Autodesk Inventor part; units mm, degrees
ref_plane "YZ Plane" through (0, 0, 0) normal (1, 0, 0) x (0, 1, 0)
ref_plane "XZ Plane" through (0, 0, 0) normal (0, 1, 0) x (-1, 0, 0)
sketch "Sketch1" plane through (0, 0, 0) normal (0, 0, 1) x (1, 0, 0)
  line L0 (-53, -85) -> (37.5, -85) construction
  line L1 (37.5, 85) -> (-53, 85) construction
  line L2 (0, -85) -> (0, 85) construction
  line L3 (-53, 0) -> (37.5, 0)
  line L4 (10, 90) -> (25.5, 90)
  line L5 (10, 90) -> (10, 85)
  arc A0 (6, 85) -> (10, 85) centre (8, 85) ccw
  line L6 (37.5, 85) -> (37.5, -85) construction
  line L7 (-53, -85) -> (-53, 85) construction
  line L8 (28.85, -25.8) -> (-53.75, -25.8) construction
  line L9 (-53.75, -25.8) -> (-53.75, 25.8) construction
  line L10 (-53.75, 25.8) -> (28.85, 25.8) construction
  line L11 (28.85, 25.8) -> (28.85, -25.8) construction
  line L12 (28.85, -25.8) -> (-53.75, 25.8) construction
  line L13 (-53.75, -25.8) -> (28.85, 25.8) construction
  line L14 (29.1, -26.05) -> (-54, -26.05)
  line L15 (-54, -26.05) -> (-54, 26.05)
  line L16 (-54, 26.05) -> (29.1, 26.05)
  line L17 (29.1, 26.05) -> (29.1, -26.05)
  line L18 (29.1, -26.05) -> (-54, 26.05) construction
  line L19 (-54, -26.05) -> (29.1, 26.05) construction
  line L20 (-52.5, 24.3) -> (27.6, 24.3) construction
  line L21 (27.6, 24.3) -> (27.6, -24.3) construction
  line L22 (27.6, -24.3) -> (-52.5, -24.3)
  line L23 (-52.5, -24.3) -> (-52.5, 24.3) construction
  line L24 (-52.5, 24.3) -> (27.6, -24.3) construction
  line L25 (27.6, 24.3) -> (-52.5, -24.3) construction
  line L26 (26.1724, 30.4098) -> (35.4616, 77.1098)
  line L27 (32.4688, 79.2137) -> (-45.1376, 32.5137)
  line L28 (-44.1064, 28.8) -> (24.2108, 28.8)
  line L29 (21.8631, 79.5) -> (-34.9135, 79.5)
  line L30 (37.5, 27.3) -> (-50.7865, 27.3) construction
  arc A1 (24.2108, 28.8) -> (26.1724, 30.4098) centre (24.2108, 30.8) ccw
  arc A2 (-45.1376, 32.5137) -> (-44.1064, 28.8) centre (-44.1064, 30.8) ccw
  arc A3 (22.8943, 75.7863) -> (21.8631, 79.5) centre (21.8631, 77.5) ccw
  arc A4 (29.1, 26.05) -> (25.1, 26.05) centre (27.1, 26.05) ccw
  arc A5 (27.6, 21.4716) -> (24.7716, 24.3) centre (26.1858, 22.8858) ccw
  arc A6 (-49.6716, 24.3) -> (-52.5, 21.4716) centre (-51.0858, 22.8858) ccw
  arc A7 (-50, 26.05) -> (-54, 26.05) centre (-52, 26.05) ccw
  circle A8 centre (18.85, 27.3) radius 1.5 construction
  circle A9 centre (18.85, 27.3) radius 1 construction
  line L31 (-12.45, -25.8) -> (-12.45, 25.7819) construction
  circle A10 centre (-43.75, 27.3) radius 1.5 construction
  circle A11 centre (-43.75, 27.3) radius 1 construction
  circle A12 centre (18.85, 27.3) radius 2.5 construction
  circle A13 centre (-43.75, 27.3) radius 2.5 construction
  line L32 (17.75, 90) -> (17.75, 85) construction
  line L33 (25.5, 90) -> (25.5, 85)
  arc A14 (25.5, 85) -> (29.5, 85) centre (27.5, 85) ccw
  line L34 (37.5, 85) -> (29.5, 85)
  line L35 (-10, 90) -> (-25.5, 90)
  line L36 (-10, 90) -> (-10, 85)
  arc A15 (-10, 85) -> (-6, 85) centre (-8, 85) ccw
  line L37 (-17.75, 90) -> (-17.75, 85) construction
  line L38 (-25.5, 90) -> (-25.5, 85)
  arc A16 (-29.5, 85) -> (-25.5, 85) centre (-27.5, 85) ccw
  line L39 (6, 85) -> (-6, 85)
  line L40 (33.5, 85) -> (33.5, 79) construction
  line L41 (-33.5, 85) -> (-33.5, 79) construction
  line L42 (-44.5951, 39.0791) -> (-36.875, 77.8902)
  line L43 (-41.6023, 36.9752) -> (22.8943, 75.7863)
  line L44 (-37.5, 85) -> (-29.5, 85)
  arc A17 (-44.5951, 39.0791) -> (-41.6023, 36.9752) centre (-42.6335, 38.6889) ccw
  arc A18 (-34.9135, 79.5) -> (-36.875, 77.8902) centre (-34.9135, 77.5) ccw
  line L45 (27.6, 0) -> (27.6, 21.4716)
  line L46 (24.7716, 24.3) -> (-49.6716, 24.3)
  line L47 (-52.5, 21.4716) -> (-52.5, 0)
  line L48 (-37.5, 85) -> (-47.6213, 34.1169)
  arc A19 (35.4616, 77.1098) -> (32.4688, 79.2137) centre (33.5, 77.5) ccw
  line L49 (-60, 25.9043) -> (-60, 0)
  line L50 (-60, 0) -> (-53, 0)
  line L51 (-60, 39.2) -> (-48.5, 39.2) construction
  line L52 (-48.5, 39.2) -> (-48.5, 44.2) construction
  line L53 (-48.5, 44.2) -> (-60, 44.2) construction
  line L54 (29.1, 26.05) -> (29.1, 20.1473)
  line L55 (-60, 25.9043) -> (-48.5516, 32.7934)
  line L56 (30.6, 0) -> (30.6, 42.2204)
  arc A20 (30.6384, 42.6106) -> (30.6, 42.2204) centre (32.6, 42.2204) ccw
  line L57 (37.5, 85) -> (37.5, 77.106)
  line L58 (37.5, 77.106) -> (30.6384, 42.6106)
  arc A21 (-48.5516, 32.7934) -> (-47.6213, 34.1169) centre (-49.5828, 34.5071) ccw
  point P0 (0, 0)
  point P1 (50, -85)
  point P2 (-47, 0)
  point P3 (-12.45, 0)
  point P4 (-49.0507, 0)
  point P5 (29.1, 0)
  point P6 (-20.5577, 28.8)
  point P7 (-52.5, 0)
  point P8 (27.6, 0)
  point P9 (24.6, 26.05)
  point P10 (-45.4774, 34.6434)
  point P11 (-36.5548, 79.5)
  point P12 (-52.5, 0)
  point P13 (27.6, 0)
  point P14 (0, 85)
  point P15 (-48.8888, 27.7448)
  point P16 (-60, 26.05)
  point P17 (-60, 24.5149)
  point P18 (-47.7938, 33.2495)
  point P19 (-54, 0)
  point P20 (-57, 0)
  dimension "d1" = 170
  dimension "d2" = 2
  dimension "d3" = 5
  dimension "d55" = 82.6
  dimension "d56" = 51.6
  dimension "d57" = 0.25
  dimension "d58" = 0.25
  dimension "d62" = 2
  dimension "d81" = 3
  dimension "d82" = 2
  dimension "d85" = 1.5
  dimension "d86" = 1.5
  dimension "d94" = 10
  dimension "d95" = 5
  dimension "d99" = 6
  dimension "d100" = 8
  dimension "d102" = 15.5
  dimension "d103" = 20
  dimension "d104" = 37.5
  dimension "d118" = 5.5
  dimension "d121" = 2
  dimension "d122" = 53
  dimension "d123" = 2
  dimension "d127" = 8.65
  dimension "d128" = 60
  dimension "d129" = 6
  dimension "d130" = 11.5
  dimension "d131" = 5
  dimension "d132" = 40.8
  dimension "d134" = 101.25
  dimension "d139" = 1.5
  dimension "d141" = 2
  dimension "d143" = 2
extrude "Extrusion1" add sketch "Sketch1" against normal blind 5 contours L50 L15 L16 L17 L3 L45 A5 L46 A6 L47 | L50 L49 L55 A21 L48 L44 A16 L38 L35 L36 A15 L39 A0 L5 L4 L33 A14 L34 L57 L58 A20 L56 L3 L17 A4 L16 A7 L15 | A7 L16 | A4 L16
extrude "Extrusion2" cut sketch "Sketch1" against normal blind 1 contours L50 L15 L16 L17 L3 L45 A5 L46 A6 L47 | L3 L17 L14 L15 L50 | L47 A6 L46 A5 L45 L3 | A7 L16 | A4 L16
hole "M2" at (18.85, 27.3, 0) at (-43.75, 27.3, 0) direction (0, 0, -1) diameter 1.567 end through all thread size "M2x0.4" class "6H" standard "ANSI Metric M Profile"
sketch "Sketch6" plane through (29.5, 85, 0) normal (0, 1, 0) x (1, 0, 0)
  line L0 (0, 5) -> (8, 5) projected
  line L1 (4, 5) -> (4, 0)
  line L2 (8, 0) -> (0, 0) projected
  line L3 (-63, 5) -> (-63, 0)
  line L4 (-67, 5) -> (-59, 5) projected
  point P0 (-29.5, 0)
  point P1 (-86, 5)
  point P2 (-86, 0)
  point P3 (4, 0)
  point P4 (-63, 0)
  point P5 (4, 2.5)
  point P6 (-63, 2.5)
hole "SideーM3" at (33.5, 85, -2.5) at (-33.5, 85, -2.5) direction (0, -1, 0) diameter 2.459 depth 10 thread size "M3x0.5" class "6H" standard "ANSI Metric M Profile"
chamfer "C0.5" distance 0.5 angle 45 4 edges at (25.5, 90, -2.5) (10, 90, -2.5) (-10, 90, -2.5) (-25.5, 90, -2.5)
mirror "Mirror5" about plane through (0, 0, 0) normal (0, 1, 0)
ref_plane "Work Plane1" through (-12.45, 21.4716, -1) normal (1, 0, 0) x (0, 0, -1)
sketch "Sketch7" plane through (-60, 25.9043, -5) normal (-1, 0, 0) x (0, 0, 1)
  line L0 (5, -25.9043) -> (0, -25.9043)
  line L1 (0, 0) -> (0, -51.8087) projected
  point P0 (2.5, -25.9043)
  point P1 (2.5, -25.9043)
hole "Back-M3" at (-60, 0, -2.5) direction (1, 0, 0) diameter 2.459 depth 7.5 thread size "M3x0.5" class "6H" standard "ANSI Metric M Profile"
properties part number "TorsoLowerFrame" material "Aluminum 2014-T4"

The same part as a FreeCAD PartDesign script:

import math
import FreeCAD as App
import Part
import Sketcher

V = App.Vector
Q = App.Units.Quantity


def edges_at(feature, points):
    """Names of the edges that pass closest to the given points."""
    edges = feature.Shape.Edges
    near = lambda p: min(range(len(edges)), key=lambda i: edges[i].distToShape(Part.Vertex(*p))[0])
    return sorted({f"Edge{near(p) + 1}" for p in points})

doc = App.newDocument("Part")
body = doc.addObject("PartDesign::Body", "Body")

# Sketch on XY plane
sketch1 = body.newObject("Sketcher::SketchObject", "Sketch")
sketch1.AttachmentSupport = (doc.getObject("XY_Plane"), [""])
sketch1.MapMode = "FlatFace"
sketch1.addGeometry(Part.LineSegment(V(-52.5, 0, 0), V(-52.5, 21.47, 0)), False)
sketch1.addGeometry(Part.ArcOfCircle(Part.Circle(V(-51.09, 22.89, 0), V(0, 0, 1), 2), math.radians(45), math.radians(225)), False)
sketch1.addGeometry(Part.LineSegment(V(-49.67, 24.3, 0), V(24.77, 24.3, 0)), False)
sketch1.addGeometry(Part.ArcOfCircle(Part.Circle(V(26.19, 22.89, 0), V(0, 0, 1), 2), math.radians(-45), math.radians(135)), False)
sketch1.addGeometry(Part.LineSegment(V(27.6, 21.47, 0), V(27.6, 0, 0)), False)
sketch1.addGeometry(Part.LineSegment(V(27.6, 0, 0), V(30.6, 0, 0)), False)
sketch1.addGeometry(Part.LineSegment(V(30.6, 0, 0), V(30.6, 42.22, 0)), False)
sketch1.addGeometry(Part.ArcOfCircle(Part.Circle(V(32.6, 42.22, 0), V(0, 0, 1), 2), math.radians(168.74), math.radians(180.01)), False)
sketch1.addGeometry(Part.LineSegment(V(30.64, 42.61, 0), V(37.5, 77.11, 0)), False)
sketch1.addGeometry(Part.LineSegment(V(37.5, 77.11, 0), V(37.5, 85, 0)), False)
sketch1.addGeometry(Part.LineSegment(V(37.5, 85, 0), V(29.5, 85, 0)), False)
sketch1.addGeometry(Part.ArcOfCircle(Part.Circle(V(27.5, 85, 0), V(0, 0, 1), 2), math.radians(180), math.radians(360)), False)
sketch1.addGeometry(Part.LineSegment(V(25.5, 85, 0), V(25.5, 90, 0)), False)
sketch1.addGeometry(Part.LineSegment(V(25.5, 90, 0), V(10, 90, 0)), False)
sketch1.addGeometry(Part.LineSegment(V(10, 90, 0), V(10, 85, 0)), False)
sketch1.addGeometry(Part.ArcOfCircle(Part.Circle(V(8, 85, 0), V(0, 0, 1), 2), math.radians(180), math.radians(360)), False)
sketch1.addGeometry(Part.LineSegment(V(6, 85, 0), V(-6, 85, 0)), False)
sketch1.addGeometry(Part.ArcOfCircle(Part.Circle(V(-8, 85, 0), V(0, 0, 1), 2), math.radians(180), math.radians(360)), False)
sketch1.addGeometry(Part.LineSegment(V(-10, 85, 0), V(-10, 90, 0)), False)
sketch1.addGeometry(Part.LineSegment(V(-10, 90, 0), V(-25.5, 90, 0)), False)
sketch1.addGeometry(Part.LineSegment(V(-25.5, 90, 0), V(-25.5, 85, 0)), False)
sketch1.addGeometry(Part.ArcOfCircle(Part.Circle(V(-27.5, 85, 0), V(0, 0, 1), 2), math.radians(180), math.radians(360)), False)
sketch1.addGeometry(Part.LineSegment(V(-29.5, 85, 0), V(-37.5, 85, 0)), False)
sketch1.addGeometry(Part.LineSegment(V(-37.5, 85, 0), V(-47.62, 34.12, 0)), False)
sketch1.addGeometry(Part.ArcOfCircle(Part.Circle(V(-49.58, 34.51, 0), V(0, 0, 1), 2), math.radians(-59), math.radians(-11)), False)
sketch1.addGeometry(Part.LineSegment(V(-48.55, 32.79, 0), V(-60, 25.9, 0)), False)
sketch1.addGeometry(Part.LineSegment(V(-60, 25.9, 0), V(-60, 0, 0)), False)
sketch1.addGeometry(Part.LineSegment(V(-60, 0, 0), V(-52.5, 0, 0)), False)
sketch1.addGeometry(Part.LineSegment(V(-44.6, 39.08, 0), V(-36.88, 77.89, 0)), False)
sketch1.addGeometry(Part.ArcOfCircle(Part.Circle(V(-34.91, 77.5, 0), V(0, 0, 1), 2), math.radians(90), math.radians(169)), False)
sketch1.addGeometry(Part.LineSegment(V(-34.91, 79.5, 0), V(21.86, 79.5, 0)), False)
sketch1.addGeometry(Part.ArcOfCircle(Part.Circle(V(21.86, 77.5, 0), V(0, 0, 1), 2), math.radians(-59), math.radians(90)), False)
sketch1.addGeometry(Part.LineSegment(V(22.89, 75.79, 0), V(-41.6, 36.98, 0)), False)
sketch1.addGeometry(Part.ArcOfCircle(Part.Circle(V(-42.63, 38.69, 0), V(0, 0, 1), 2), math.radians(169), math.radians(301)), False)
sketch1.addGeometry(Part.LineSegment(V(35.46, 77.11, 0), V(26.17, 30.41, 0)), False)
sketch1.addGeometry(Part.ArcOfCircle(Part.Circle(V(24.21, 30.8, 0), V(0, 0, 1), 2), math.radians(-90), math.radians(-11)), False)
sketch1.addGeometry(Part.LineSegment(V(24.21, 28.8, 0), V(-44.11, 28.8, 0)), False)
sketch1.addGeometry(Part.ArcOfCircle(Part.Circle(V(-44.11, 30.8, 0), V(0, 0, 1), 2), math.radians(121), math.radians(270)), False)
sketch1.addGeometry(Part.LineSegment(V(-45.14, 32.51, 0), V(32.47, 79.21, 0)), False)
sketch1.addGeometry(Part.ArcOfCircle(Part.Circle(V(33.5, 77.5, 0), V(0, 0, 1), 2), math.radians(-11), math.radians(121)), False)
sketch1.addConstraint(Sketcher.Constraint("Coincident", 0, 2, 1, 2))
sketch1.addConstraint(Sketcher.Constraint("Coincident", 1, 1, 2, 1))
sketch1.addConstraint(Sketcher.Constraint("Coincident", 2, 2, 3, 2))
sketch1.addConstraint(Sketcher.Constraint("Coincident", 3, 1, 4, 1))
sketch1.addConstraint(Sketcher.Constraint("Coincident", 4, 2, 5, 1))
sketch1.addConstraint(Sketcher.Constraint("Coincident", 5, 2, 6, 1))
sketch1.addConstraint(Sketcher.Constraint("Tangent", 6, 2, 7, 2))
sketch1.addConstraint(Sketcher.Constraint("Tangent", 7, 1, 8, 1))
sketch1.addConstraint(Sketcher.Constraint("Coincident", 8, 2, 9, 1))
sketch1.addConstraint(Sketcher.Constraint("Coincident", 9, 2, 10, 1))
sketch1.addConstraint(Sketcher.Constraint("Coincident", 10, 2, 11, 2))
sketch1.addConstraint(Sketcher.Constraint("Tangent", 11, 1, 12, 1))
sketch1.addConstraint(Sketcher.Constraint("Coincident", 12, 2, 13, 1))
sketch1.addConstraint(Sketcher.Constraint("Coincident", 13, 2, 14, 1))
sketch1.addConstraint(Sketcher.Constraint("Tangent", 14, 2, 15, 2))
sketch1.addConstraint(Sketcher.Constraint("Coincident", 15, 1, 16, 1))
sketch1.addConstraint(Sketcher.Constraint("Coincident", 16, 2, 17, 2))
sketch1.addConstraint(Sketcher.Constraint("Tangent", 17, 1, 18, 1))
sketch1.addConstraint(Sketcher.Constraint("Coincident", 18, 2, 19, 1))
sketch1.addConstraint(Sketcher.Constraint("Coincident", 19, 2, 20, 1))
sketch1.addConstraint(Sketcher.Constraint("Tangent", 20, 2, 21, 2))
sketch1.addConstraint(Sketcher.Constraint("Coincident", 21, 1, 22, 1))
sketch1.addConstraint(Sketcher.Constraint("Coincident", 22, 2, 23, 1))
sketch1.addConstraint(Sketcher.Constraint("Tangent", 23, 2, 24, 2))
sketch1.addConstraint(Sketcher.Constraint("Tangent", 24, 1, 25, 1))
sketch1.addConstraint(Sketcher.Constraint("Coincident", 25, 2, 26, 1))
sketch1.addConstraint(Sketcher.Constraint("Coincident", 26, 2, 27, 1))
sketch1.addConstraint(Sketcher.Constraint("Coincident", 27, 2, 0, 1))
sketch1.addConstraint(Sketcher.Constraint("Tangent", 28, 2, 29, 2))
sketch1.addConstraint(Sketcher.Constraint("Tangent", 29, 1, 30, 1))
sketch1.addConstraint(Sketcher.Constraint("Tangent", 30, 2, 31, 2))
sketch1.addConstraint(Sketcher.Constraint("Tangent", 31, 1, 32, 1))
sketch1.addConstraint(Sketcher.Constraint("Tangent", 32, 2, 33, 2))
sketch1.addConstraint(Sketcher.Constraint("Tangent", 33, 1, 28, 1))
sketch1.addConstraint(Sketcher.Constraint("Tangent", 34, 2, 35, 2))
sketch1.addConstraint(Sketcher.Constraint("Tangent", 35, 1, 36, 1))
sketch1.addConstraint(Sketcher.Constraint("Tangent", 36, 2, 37, 2))
sketch1.addConstraint(Sketcher.Constraint("Tangent", 37, 1, 38, 1))
sketch1.addConstraint(Sketcher.Constraint("Tangent", 38, 2, 39, 2))
sketch1.addConstraint(Sketcher.Constraint("Tangent", 39, 1, 34, 1))
sketch1.addConstraint(Sketcher.Constraint("Vertical", 0))
sketch1.addConstraint(Sketcher.Constraint("Horizontal", 2))
sketch1.addConstraint(Sketcher.Constraint("Vertical", 4))
sketch1.addConstraint(Sketcher.Constraint("Horizontal", 5))
sketch1.addConstraint(Sketcher.Constraint("Vertical", 6))
sketch1.addConstraint(Sketcher.Constraint("Vertical", 9))
sketch1.addConstraint(Sketcher.Constraint("Horizontal", 10))
sketch1.addConstraint(Sketcher.Constraint("Vertical", 12))
sketch1.addConstraint(Sketcher.Constraint("Horizontal", 13))
sketch1.addConstraint(Sketcher.Constraint("Vertical", 14))
sketch1.addConstraint(Sketcher.Constraint("Horizontal", 16))
sketch1.addConstraint(Sketcher.Constraint("Vertical", 18))
sketch1.addConstraint(Sketcher.Constraint("Horizontal", 19))
sketch1.addConstraint(Sketcher.Constraint("Vertical", 20))
sketch1.addConstraint(Sketcher.Constraint("Horizontal", 22))
sketch1.addConstraint(Sketcher.Constraint("Vertical", 26))
sketch1.addConstraint(Sketcher.Constraint("Horizontal", 27))
sketch1.addConstraint(Sketcher.Constraint("Horizontal", 30))
sketch1.addConstraint(Sketcher.Constraint("Horizontal", 36))
sketch1.addConstraint(Sketcher.Constraint("Equal", 1, 3))
sketch1.addConstraint(Sketcher.Constraint("Equal", 3, 11))
sketch1.addConstraint(Sketcher.Constraint("Equal", 11, 15))
sketch1.addConstraint(Sketcher.Constraint("Equal", 15, 17))
sketch1.addConstraint(Sketcher.Constraint("Equal", 17, 21))
sketch1.addConstraint(Sketcher.Constraint("Equal", 21, 24))
sketch1.addConstraint(Sketcher.Constraint("Equal", 24, 29))
sketch1.addConstraint(Sketcher.Constraint("Equal", 29, 31))
sketch1.addConstraint(Sketcher.Constraint("Equal", 31, 33))
sketch1.addConstraint(Sketcher.Constraint("Equal", 33, 35))
sketch1.addConstraint(Sketcher.Constraint("Equal", 35, 37))
sketch1.addConstraint(Sketcher.Constraint("Equal", 37, 39))
sketch1.addConstraint(Sketcher.Constraint("Symmetric", 15, 3, 17, 3, -2))
sketch1.addConstraint(Sketcher.Constraint("Symmetric", 11, 3, 21, 3, -2))
sketch1.addConstraint(Sketcher.Constraint("Symmetric", 9, 2, 22, 2, -2))
sketch1.addConstraint(Sketcher.Constraint("PointOnObject", 4, 2, -1))
sketch1.addConstraint(Sketcher.Constraint("PointOnObject", 26, 2, -1))
sketch1.addConstraint(Sketcher.Constraint("Parallel", 8, 23))
sketch1.addConstraint(Sketcher.Constraint("Parallel", 23, 28))
sketch1.addConstraint(Sketcher.Constraint("Parallel", 25, 32))
sketch1.addConstraint(Sketcher.Constraint("Parallel", 28, 34))
sketch1.addConstraint(Sketcher.Constraint("Parallel", 32, 38))
sketch1.addConstraint(Sketcher.Constraint("Horizontal", 1, 3, 3, 3))
sketch1.addConstraint(Sketcher.Constraint("Horizontal", 11, 3, 15, 3))
sketch1.addConstraint(Sketcher.Constraint("Horizontal", 31, 3, 39, 3))
sketch1.addConstraint(Sketcher.Constraint("Horizontal", 0, 2, 3, 1))
sketch1.addConstraint(Sketcher.Constraint("Horizontal", 21, 3, 9, 2))
sketch1.addConstraint(Sketcher.Constraint("Horizontal", 14, 2, 15, 1))
sketch1.addConstraint(Sketcher.Constraint("Horizontal", 13, 2, 18, 2))
sketch1.addConstraint(Sketcher.Constraint("Radius", 1, Q("2 mm")))
sketch1.addConstraint(Sketcher.Constraint("DistanceX", 5, 1, 5, 2, Q("3 mm")))
sketch1.addConstraint(Sketcher.Constraint("DistanceX", 10, 2, 10, 1, Q("8 mm")))
sketch1.addConstraint(Sketcher.Constraint("DistanceY", 12, 1, 12, 2, Q("5 mm")))
sketch1.addConstraint(Sketcher.Constraint("DistanceX", 13, 2, 13, 1, Q("15.5 mm")))
sketch1.addConstraint(Sketcher.Constraint("DistanceX", -1, 1, 15, 3, Q("8 mm")))
sketch1.addConstraint(Sketcher.Constraint("DistanceX", 25, 2, -1, 1, Q("60 mm")))
sketch1.addConstraint(Sketcher.Constraint("DistanceX", 11, 3, 39, 3, Q("6 mm")))
sketch1.addConstraint(Sketcher.Constraint("Angle", 23, Q("-101.25 deg")))
sketch1.addConstraint(Sketcher.Constraint("DistanceY", 29, 1, 22, 2, Q("5.5 mm")))
sketch1.addConstraint(Sketcher.Constraint("DistanceX", 27, 1, 27, 2, Q("7.5 mm")))
sketch1.addConstraint(Sketcher.Constraint("DistanceY", -1, 1, 11, 3, Q("85 mm")))
sketch1.addConstraint(Sketcher.Constraint("DistanceY", -1, 1, 35, 3, Q("30.8 mm")))
sketch1.addConstraint(Sketcher.Constraint("DistanceY", -1, 1, 1, 1, Q("24.3 mm")))
sketch1.addConstraint(Sketcher.Constraint("DistanceX", -1, 1, 3, 1, Q("27.6 mm")))
sketch1.addConstraint(Sketcher.Constraint("Radius", 7, Q("1.9966 mm")))
sketch1.addConstraint(Sketcher.Constraint("Distance", 23, Q("51.88 mm")))
sketch1.addConstraint(Sketcher.Constraint("DistanceY", 9, 1, 9, 2, Q("7.894 mm")))
sketch1.addConstraint(Sketcher.Constraint("DistanceX", 33, 3, 29, 3, Q("7.72 mm")))
sketch1.addConstraint(Sketcher.Constraint("DistanceX", 1, 1, 24, 1, Q("1.12 mm")))
sketch1.addConstraint(Sketcher.Constraint("Distance", 38, Q("90.574 mm")))
sketch1.addConstraint(Sketcher.Constraint("DistanceX", -1, 1, 31, 3, Q("21.863 mm")))
sketch1.addConstraint(Sketcher.Constraint("DistanceY", 3, 3, 7, 3, Q("19.335 mm")))
pad1 = body.newObject("PartDesign::Pad", "Pad")
pad1.Profile = sketch1
pad1.Length = 5
pad1.Reversed = True

# Sketch on XY plane
sketch2 = body.newObject("Sketcher::SketchObject", "Sketch001")
sketch2.AttachmentSupport = (doc.getObject("XY_Plane"), [""])
sketch2.MapMode = "FlatFace"
sketch2.addGeometry(Part.LineSegment(V(-54, 26.1, 0), V(-54, -26.1, 0)), False)
sketch2.addGeometry(Part.LineSegment(V(-54, -26.1, 0), V(29.1, -26.1, 0)), False)
sketch2.addGeometry(Part.LineSegment(V(29.1, -26.1, 0), V(29.1, 26.1, 0)), False)
sketch2.addGeometry(Part.ArcOfCircle(Part.Circle(V(27.1, 26.1, 0), V(0, 0, 1), 2), math.radians(0), math.radians(180)), False)
sketch2.addGeometry(Part.LineSegment(V(25.1, 26.1, 0), V(-50, 26.1, 0)), False)
sketch2.addGeometry(Part.ArcOfCircle(Part.Circle(V(-52, 26.1, 0), V(0, 0, 1), 2), math.radians(0), math.radians(180)), False)
sketch2.addConstraint(Sketcher.Constraint("Coincident", 0, 2, 1, 1))
sketch2.addConstraint(Sketcher.Constraint("Coincident", 1, 2, 2, 1))
sketch2.addConstraint(Sketcher.Constraint("Tangent", 2, 2, 3, 1))
sketch2.addConstraint(Sketcher.Constraint("Coincident", 3, 2, 4, 1))
sketch2.addConstraint(Sketcher.Constraint("Coincident", 4, 2, 5, 1))
sketch2.addConstraint(Sketcher.Constraint("Tangent", 5, 2, 0, 1))
sketch2.addConstraint(Sketcher.Constraint("Vertical", 0))
sketch2.addConstraint(Sketcher.Constraint("Horizontal", 1))
sketch2.addConstraint(Sketcher.Constraint("Vertical", 2))
sketch2.addConstraint(Sketcher.Constraint("Horizontal", 4))
sketch2.addConstraint(Sketcher.Constraint("Equal", 3, 5))
sketch2.addConstraint(Sketcher.Constraint("Horizontal", 3, 3, 5, 3))
sketch2.addConstraint(Sketcher.Constraint("Horizontal", 2, 2, 3, 2))
sketch2.addConstraint(Sketcher.Constraint("Radius", 3, Q("2 mm")))
sketch2.addConstraint(Sketcher.Constraint("DistanceX", 1, 1, 1, 2, Q("83.1 mm")))
sketch2.addConstraint(Sketcher.Constraint("DistanceY", 0, 2, 0, 1, Q("52.1 mm")))
sketch2.addConstraint(Sketcher.Constraint("DistanceX", 5, 3, -1, 1, Q("52 mm")))
sketch2.addConstraint(Sketcher.Constraint("DistanceY", -1, 1, 3, 3, Q("26.05 mm")))
pocket1 = body.newObject("PartDesign::Pocket", "Pocket")
pocket1.Profile = sketch2
pocket1.Length = 1

# Sketch on XY plane
sketch3 = body.newObject("Sketcher::SketchObject", "Sketch002")
sketch3.AttachmentSupport = (doc.getObject("XY_Plane"), [""])
sketch3.MapMode = "FlatFace"
sketch3.addGeometry(Part.Circle(V(18.9, 27.3, 0), V(0, 0, 1), 0.8), False)
sketch3.addGeometry(Part.Circle(V(-43.8, 27.3, 0), V(0, 0, 1), 0.8), False)
sketch3.addConstraint(Sketcher.Constraint("Equal", 0, 1))
sketch3.addConstraint(Sketcher.Constraint("Horizontal", 0, 3, 1, 3))
sketch3.addConstraint(Sketcher.Constraint("Diameter", 0, Q("1.567 mm")))
sketch3.addConstraint(Sketcher.Constraint("DistanceY", -1, 1, 0, 3, Q("27.3 mm")))
sketch3.addConstraint(Sketcher.Constraint("DistanceX", 1, 3, 0, 3, Q("62.6 mm")))
sketch3.addConstraint(Sketcher.Constraint("DistanceX", -1, 1, 0, 3, Q("18.85 mm")))
doc.recompute()
hole = body.newObject("PartDesign::Hole", "Hole")
hole.Profile = sketch3
hole.ThreadType = "None"
hole.Diameter = 1.567
hole.DepthType = "ThroughAll"

# Sketch on XZ plane
sketch4 = body.newObject("Sketcher::SketchObject", "Sketch003")
sketch4.AttachmentSupport = (doc.getObject("XZ_Plane"), [""])
sketch4.MapMode = "FlatFace"
sketch4.AttachmentOffset = App.Placement(V(0, 0, -85), App.Rotation())
sketch4.addGeometry(Part.Circle(V(33.5, -2.5, 0), V(0, 0, 1), 1.2), False)
sketch4.addGeometry(Part.Circle(V(-33.5, -2.5, 0), V(0, 0, 1), 1.2), False)
sketch4.addConstraint(Sketcher.Constraint("Equal", 0, 1))
sketch4.addConstraint(Sketcher.Constraint("Symmetric", 0, 3, 1, 3, -2))
sketch4.addConstraint(Sketcher.Constraint("Diameter", 0, Q("2.459 mm")))
sketch4.addConstraint(Sketcher.Constraint("DistanceX", 1, 3, 0, 3, Q("67 mm")))
sketch4.addConstraint(Sketcher.Constraint("DistanceY", 0, 3, -1, 1, Q("2.5 mm")))
doc.recompute()
hole2 = body.newObject("PartDesign::Hole", "Hole001")
hole2.Profile = sketch4
hole2.ThreadType = "None"
hole2.Diameter = 2.459
hole2.DepthType = "Dimension"
hole2.Depth = 10
hole2.DrillPoint = "Flat"
hole2.Reversed = True
doc.recompute()

chamfer = body.newObject("PartDesign::Chamfer", "Chamfer")
chamfer.Base = (hole2, edges_at(hole2, [
    (25.5, 90, -2.5),
    (10, 90, -2.5),
    (-10, 90, -2.5),
    (-25.5, 90, -2.5),
]))
chamfer.Size = 0.5
doc.recompute()

mirrored = body.newObject("PartDesign::Mirrored", "Mirrored")
mirrored.TransformMode = "Transform body"
mirrored.MirrorPlane = (doc.getObject("XZ_Plane"), [""])
body.Tip = mirrored

# Sketch on YZ plane
sketch5 = body.newObject("Sketcher::SketchObject", "Sketch004")
sketch5.AttachmentSupport = (doc.getObject("YZ_Plane"), [""])
sketch5.MapMode = "FlatFace"
sketch5.AttachmentOffset = App.Placement(V(0, 0, -60), App.Rotation())
sketch5.addGeometry(Part.Circle(V(0, -2.5, 0), V(0, 0, 1), 1.2), False)
sketch5.addConstraint(Sketcher.Constraint("PointOnObject", 0, 3, -2))
sketch5.addConstraint(Sketcher.Constraint("Diameter", 0, Q("2.459 mm")))
sketch5.addConstraint(Sketcher.Constraint("DistanceY", 0, 3, -1, 1, Q("2.5 mm")))
doc.recompute()
hole3 = body.newObject("PartDesign::Hole", "Hole002")
hole3.Profile = sketch5
hole3.ThreadType = "None"
hole3.Diameter = 2.459
hole3.DepthType = "Dimension"
hole3.Depth = 7.5
hole3.DrillPoint = "Flat"
hole3.Reversed = True

doc.recompute()
